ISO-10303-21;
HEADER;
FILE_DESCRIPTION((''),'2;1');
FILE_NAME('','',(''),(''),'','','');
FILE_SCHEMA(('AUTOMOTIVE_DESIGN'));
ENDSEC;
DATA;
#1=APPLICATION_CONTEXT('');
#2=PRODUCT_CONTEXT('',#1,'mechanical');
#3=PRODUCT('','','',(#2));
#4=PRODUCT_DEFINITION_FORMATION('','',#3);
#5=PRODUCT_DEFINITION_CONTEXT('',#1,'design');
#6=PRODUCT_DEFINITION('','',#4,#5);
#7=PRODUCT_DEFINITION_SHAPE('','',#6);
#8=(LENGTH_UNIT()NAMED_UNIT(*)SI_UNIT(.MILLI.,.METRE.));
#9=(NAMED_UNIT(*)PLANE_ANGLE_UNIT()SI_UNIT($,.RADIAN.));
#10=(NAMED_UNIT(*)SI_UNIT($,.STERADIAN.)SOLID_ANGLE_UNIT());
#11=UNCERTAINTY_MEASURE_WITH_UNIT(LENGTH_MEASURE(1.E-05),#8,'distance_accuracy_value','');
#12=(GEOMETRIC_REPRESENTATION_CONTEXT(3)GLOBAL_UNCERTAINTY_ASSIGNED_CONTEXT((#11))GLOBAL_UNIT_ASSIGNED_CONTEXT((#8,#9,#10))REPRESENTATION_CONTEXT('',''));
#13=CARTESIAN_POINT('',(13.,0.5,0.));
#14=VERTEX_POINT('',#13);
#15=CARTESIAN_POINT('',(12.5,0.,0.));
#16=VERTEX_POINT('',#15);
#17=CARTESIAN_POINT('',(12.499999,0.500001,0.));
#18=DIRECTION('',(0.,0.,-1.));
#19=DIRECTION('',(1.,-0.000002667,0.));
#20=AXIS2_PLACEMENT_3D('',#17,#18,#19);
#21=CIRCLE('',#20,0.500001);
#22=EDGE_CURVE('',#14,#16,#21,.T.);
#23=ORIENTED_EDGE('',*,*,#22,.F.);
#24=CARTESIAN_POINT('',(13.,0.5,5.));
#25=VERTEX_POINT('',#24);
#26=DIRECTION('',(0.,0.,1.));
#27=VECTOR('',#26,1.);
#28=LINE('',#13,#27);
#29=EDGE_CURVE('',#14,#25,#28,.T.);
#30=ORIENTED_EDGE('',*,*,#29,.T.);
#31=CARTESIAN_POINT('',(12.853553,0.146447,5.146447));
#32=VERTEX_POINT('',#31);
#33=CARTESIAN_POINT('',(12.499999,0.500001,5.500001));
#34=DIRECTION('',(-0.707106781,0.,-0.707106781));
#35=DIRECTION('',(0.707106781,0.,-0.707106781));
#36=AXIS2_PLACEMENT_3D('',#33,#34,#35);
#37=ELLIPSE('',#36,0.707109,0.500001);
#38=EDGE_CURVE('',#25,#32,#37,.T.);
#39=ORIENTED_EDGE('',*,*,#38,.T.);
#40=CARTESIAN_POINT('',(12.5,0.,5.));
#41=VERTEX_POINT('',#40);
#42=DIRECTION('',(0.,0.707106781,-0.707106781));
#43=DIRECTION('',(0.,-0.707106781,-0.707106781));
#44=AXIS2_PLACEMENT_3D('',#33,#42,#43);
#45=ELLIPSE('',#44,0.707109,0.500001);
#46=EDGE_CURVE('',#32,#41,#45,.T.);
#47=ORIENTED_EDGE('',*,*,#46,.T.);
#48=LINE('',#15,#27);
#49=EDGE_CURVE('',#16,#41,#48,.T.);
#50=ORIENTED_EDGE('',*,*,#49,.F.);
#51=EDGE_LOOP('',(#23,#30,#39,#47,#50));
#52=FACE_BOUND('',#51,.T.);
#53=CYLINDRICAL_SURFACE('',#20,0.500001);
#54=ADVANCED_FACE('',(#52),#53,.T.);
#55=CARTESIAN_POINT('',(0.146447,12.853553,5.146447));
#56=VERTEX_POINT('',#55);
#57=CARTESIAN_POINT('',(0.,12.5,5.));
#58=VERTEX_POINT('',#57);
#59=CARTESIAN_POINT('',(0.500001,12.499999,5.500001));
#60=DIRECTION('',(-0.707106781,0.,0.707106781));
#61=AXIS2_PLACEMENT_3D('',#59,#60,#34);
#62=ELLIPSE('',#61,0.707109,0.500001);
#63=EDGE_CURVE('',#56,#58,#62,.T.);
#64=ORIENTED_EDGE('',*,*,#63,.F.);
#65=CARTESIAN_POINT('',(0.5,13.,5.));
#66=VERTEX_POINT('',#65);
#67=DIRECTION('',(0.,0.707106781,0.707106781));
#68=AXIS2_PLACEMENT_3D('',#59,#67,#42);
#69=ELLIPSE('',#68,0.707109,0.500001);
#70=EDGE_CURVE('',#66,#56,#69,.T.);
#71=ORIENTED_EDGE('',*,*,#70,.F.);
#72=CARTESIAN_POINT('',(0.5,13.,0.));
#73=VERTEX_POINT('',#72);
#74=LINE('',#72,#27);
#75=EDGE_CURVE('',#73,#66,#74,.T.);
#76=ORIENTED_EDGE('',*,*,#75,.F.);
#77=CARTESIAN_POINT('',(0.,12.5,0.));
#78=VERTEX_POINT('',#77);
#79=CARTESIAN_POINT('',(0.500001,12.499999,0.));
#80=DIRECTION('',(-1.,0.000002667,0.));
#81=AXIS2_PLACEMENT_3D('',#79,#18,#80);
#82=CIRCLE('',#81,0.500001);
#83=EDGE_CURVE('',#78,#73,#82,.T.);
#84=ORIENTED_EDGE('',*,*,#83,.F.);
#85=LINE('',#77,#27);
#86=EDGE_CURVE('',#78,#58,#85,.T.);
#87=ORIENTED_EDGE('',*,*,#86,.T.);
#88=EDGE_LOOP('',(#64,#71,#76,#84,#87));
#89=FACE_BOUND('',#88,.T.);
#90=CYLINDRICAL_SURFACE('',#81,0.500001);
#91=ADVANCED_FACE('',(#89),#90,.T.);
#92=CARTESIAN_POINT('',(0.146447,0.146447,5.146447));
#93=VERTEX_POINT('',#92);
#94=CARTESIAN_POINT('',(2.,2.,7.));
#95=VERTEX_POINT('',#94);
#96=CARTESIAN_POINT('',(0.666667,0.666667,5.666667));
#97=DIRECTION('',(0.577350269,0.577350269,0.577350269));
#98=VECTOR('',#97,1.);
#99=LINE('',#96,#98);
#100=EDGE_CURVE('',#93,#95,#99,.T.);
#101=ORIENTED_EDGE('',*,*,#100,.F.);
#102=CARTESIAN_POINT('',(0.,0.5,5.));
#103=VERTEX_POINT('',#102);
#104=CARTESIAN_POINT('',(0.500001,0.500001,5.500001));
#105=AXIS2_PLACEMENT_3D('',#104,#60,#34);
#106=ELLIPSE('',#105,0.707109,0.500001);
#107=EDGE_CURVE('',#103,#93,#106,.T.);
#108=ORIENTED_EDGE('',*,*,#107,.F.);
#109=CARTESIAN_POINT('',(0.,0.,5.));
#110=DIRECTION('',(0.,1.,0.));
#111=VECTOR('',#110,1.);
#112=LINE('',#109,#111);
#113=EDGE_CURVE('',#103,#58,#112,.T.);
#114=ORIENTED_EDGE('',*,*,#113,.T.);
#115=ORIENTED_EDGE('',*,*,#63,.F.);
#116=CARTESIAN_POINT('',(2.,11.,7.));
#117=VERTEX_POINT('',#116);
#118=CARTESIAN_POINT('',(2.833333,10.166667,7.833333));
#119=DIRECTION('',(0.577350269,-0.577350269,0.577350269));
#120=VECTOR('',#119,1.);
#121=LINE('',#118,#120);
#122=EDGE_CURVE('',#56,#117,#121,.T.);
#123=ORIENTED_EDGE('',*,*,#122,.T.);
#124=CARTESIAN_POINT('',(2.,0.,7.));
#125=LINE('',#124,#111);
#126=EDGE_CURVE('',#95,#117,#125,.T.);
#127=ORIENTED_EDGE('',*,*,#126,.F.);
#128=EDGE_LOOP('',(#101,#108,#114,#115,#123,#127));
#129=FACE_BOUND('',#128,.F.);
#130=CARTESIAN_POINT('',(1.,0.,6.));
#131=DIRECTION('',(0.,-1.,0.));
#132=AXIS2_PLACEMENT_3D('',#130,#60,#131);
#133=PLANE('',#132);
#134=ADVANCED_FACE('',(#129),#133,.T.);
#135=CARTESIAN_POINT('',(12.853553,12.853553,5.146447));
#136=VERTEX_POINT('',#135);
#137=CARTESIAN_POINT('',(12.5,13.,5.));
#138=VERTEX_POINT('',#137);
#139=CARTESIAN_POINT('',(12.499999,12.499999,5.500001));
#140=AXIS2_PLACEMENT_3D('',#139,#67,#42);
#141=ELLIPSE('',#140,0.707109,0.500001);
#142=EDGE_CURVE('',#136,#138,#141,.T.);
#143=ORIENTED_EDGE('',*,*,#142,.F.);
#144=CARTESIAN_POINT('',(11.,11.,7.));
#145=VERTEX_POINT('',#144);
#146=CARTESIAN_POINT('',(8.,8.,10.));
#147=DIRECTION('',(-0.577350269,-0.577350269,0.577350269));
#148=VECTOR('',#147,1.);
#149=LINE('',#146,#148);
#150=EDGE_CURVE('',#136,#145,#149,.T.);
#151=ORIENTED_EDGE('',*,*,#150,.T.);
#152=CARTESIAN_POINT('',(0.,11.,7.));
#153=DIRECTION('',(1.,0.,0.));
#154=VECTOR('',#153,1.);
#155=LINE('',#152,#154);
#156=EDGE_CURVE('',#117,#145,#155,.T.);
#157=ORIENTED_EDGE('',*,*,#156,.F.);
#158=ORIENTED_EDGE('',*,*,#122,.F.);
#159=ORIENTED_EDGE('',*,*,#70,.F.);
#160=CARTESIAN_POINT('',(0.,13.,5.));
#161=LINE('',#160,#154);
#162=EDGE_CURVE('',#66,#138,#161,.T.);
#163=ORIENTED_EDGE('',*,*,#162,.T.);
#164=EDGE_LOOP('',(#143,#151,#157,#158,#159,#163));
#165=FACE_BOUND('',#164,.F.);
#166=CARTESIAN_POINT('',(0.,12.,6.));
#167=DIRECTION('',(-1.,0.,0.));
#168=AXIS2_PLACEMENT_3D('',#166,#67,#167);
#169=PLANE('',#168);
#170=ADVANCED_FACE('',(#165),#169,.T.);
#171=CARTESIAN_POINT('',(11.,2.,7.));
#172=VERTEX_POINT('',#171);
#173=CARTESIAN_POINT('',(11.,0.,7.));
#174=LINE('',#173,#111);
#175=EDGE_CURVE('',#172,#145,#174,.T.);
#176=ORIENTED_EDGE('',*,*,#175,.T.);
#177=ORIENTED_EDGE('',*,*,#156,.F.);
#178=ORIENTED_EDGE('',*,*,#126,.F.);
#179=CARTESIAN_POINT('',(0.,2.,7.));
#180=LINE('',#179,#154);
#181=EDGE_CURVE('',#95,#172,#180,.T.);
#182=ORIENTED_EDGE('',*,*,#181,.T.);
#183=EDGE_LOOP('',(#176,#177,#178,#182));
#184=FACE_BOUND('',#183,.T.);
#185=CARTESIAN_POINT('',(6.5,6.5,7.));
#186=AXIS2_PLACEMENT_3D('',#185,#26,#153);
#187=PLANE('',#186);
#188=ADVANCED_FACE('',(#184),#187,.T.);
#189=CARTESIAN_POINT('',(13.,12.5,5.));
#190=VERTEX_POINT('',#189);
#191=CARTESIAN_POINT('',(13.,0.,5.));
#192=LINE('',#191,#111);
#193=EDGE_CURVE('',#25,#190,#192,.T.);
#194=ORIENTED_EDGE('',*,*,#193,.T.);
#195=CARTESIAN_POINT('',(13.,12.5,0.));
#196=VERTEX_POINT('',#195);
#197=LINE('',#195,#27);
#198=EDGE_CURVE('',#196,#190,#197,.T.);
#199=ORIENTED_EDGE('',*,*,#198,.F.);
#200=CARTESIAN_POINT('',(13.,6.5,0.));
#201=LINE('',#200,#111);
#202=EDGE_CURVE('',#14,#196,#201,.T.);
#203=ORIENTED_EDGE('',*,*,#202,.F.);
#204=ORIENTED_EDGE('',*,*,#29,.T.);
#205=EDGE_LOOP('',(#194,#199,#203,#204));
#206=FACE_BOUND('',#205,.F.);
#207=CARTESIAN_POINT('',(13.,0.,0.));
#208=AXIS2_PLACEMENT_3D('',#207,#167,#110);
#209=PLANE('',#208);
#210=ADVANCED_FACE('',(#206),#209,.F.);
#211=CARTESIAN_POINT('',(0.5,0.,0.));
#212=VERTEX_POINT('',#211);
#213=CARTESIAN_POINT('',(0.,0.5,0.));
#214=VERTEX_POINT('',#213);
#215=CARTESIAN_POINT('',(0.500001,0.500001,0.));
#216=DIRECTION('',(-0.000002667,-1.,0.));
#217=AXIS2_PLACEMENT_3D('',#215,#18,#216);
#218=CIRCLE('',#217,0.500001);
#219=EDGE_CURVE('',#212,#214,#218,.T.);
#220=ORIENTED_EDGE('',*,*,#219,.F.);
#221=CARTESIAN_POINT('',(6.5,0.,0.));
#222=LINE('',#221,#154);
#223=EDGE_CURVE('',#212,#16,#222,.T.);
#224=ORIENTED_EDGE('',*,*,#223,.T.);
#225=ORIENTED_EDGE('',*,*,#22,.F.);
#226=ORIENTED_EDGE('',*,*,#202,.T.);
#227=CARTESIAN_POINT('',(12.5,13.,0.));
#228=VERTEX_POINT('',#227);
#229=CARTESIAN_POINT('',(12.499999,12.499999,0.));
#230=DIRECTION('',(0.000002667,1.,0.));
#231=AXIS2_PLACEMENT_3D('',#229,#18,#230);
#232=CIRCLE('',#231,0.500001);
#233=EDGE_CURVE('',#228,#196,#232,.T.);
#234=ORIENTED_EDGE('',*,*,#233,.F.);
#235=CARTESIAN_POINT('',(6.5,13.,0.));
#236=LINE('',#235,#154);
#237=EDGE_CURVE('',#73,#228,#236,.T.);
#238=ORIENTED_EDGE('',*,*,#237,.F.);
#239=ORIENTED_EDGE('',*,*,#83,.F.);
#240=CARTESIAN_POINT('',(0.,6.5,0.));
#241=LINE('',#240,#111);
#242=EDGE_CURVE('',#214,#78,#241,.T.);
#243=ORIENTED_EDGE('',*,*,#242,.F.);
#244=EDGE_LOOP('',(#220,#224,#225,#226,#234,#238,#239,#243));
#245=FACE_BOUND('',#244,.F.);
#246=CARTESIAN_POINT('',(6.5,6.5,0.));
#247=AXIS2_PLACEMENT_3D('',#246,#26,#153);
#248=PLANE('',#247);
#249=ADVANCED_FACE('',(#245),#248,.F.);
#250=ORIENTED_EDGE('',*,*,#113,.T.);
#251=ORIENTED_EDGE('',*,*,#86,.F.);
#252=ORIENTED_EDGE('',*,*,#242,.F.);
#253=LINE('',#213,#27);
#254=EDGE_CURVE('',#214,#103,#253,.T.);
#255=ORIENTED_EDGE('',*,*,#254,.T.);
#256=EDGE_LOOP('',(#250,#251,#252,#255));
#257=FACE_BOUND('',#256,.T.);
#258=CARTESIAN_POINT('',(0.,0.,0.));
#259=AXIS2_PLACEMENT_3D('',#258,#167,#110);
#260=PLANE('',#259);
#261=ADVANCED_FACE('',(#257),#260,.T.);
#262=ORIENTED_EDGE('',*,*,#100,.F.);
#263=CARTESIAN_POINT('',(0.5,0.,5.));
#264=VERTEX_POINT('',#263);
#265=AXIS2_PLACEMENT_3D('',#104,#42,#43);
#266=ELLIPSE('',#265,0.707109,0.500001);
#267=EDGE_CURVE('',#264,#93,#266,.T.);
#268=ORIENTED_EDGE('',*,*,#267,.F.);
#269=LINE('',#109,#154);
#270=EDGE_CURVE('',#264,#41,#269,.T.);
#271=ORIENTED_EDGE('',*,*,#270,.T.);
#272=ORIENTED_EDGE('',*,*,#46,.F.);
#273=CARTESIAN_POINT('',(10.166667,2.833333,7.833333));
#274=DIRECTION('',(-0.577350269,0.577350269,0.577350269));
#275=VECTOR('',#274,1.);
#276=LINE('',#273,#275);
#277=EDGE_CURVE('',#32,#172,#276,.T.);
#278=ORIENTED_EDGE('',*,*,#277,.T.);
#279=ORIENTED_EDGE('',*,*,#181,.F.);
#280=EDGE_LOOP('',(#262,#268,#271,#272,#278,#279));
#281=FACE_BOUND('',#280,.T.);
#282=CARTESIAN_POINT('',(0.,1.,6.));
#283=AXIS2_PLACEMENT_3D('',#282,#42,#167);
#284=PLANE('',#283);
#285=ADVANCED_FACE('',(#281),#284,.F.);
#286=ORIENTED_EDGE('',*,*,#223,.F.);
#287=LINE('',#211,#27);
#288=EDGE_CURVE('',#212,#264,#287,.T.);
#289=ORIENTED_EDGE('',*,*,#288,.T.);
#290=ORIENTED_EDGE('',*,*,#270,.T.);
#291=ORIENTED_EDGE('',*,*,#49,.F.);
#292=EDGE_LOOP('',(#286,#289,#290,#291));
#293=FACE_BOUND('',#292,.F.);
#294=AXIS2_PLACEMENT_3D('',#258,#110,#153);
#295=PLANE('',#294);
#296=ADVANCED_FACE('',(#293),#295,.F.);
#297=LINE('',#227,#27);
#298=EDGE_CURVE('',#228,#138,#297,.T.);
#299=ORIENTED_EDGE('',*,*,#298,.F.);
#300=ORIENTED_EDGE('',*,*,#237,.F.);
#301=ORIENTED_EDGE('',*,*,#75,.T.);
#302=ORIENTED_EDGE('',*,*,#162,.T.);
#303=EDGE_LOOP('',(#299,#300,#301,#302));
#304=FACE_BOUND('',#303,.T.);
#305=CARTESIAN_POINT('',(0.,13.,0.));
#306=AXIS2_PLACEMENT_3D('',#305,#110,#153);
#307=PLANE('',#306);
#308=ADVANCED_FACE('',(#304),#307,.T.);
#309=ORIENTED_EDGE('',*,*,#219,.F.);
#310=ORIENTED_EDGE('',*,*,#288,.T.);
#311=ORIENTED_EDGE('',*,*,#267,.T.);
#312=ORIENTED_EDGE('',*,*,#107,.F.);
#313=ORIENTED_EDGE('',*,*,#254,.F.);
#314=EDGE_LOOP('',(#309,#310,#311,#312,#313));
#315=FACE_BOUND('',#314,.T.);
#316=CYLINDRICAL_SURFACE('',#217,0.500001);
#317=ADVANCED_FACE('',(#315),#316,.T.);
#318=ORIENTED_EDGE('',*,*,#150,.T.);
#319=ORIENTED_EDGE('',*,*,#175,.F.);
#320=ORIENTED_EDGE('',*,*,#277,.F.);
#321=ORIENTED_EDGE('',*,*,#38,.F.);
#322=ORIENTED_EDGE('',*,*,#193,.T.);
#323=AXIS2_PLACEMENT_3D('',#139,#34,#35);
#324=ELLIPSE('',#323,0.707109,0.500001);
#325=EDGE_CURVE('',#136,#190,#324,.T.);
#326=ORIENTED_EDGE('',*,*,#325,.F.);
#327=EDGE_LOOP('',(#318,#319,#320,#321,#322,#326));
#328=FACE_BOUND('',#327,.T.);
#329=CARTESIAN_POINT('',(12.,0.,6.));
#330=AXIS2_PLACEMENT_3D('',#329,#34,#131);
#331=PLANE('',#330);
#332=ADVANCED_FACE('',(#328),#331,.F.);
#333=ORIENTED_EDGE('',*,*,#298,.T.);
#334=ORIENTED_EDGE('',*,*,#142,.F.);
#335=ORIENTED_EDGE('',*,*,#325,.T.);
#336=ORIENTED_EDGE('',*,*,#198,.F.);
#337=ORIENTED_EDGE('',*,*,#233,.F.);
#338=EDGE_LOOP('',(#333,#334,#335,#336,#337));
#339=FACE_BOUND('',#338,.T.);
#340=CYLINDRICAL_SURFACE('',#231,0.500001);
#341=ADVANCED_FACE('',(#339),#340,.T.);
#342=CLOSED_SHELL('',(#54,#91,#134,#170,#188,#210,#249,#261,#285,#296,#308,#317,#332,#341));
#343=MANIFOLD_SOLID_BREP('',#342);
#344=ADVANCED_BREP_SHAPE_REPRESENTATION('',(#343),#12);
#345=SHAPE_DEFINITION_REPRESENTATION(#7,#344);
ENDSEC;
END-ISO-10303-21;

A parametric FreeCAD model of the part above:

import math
import FreeCAD as App
import Part
import Sketcher

V = App.Vector


def edges_at(feature, points):
    """Names of the edges that pass closest to the given points."""
    edges = feature.Shape.Edges
    near = lambda p: min(range(len(edges)), key=lambda i: edges[i].distToShape(Part.Vertex(*p))[0])
    return sorted({f"Edge{near(p) + 1}" for p in points})

doc = App.newDocument("Part")
body = doc.addObject("PartDesign::Body", "Body")

# Sketch on XY plane
sketch1 = body.newObject("Sketcher::SketchObject", "Sketch")
sketch1.AttachmentSupport = (doc.getObject("XY_Plane"), [""])
sketch1.MapMode = "FlatFace"
sketch1.addGeometry([
    Part.LineSegment(V(0, 13, 0), V(0, 0, 0)),
    Part.LineSegment(V(0, 0, 0), V(13, 0, 0)),
    Part.LineSegment(V(13, 0, 0), V(13, 13, 0)),
    Part.LineSegment(V(13, 13, 0), V(0, 13, 0)),
], False)
sketch1.addConstraint([
    Sketcher.Constraint("Coincident", 0, 2, 1, 1),
    Sketcher.Constraint("Coincident", 1, 2, 2, 1),
    Sketcher.Constraint("Coincident", 2, 2, 3, 1),
    Sketcher.Constraint("Coincident", 3, 2, 0, 1),
    Sketcher.Constraint("Vertical", 0),
    Sketcher.Constraint("Horizontal", 1),
    Sketcher.Constraint("Vertical", 2),
    Sketcher.Constraint("Horizontal", 3),
    Sketcher.Constraint("Coincident", 0, 2, -1, 1),
    Sketcher.Constraint("Equal", 3, 0),
    Sketcher.Constraint("DistanceX", 1, 1, 1, 2, 13.0),
])
pad1 = body.newObject("PartDesign::Pad", "Pad")
pad1.Profile = sketch1
pad1.Length = 7
doc.recompute()

chamfer = body.newObject("PartDesign::Chamfer", "Chamfer")
chamfer.Base = (pad1, edges_at(pad1, [
    (0, 6.5, 7),
    (6.5, 13, 7),
    (6.5, 0, 7),
    (13, 6.5, 7),
]))
chamfer.Size = 2

# Sketch on XY plane
sketch2 = body.newObject("Sketcher::SketchObject", "Sketch001")
sketch2.AttachmentSupport = (doc.getObject("XY_Plane"), [""])
sketch2.MapMode = "FlatFace"
sketch2.addGeometry([
    Part.LineSegment(V(0, 0, 0), V(0, 0.5, 0)),  # 0
    Part.ArcOfCircle(Part.Circle(V(0.5, 0.5, 0), V(0, 0, 1), 0.5), math.radians(-180), math.radians(-90)),  # 1
    Part.LineSegment(V(0.5, 0, 0), V(0, 0, 0)),  # 2
    Part.LineSegment(V(13, 0, 0), V(12.5, 0, 0)),  # 3
    Part.ArcOfCircle(Part.Circle(V(12.5, 0.5, 0), V(0, 0, 1), 0.5), math.radians(-90), math.radians(0)),  # 4
    Part.LineSegment(V(13, 0.5, 0), V(13, 0, 0)),  # 5
    Part.LineSegment(V(0, 12.5, 0), V(0, 13, 0)),  # 6
    Part.LineSegment(V(0, 13, 0), V(0.5, 13, 0)),  # 7
    Part.ArcOfCircle(Part.Circle(V(0.5, 12.5, 0), V(0, 0, 1), 0.5), math.radians(90), math.radians(180)),  # 8
    Part.LineSegment(V(13, 13, 0), V(13, 12.5, 0)),  # 9
    Part.ArcOfCircle(Part.Circle(V(12.5, 12.5, 0), V(0, 0, 1), 0.5), math.radians(0), math.radians(90)),  # 10
    Part.LineSegment(V(12.5, 13, 0), V(13, 13, 0)),  # 11
], False)
sketch2.addConstraint([
    Sketcher.Constraint("Coincident", 0, 2, 1, 1),
    Sketcher.Constraint("Coincident", 1, 2, 2, 1),
    Sketcher.Constraint("Coincident", 2, 2, 0, 1),
    Sketcher.Constraint("Coincident", 3, 2, 4, 1),
    Sketcher.Constraint("Coincident", 4, 2, 5, 1),
    Sketcher.Constraint("Coincident", 5, 2, 3, 1),
    Sketcher.Constraint("Coincident", 6, 2, 7, 1),
    Sketcher.Constraint("Coincident", 7, 2, 8, 1),
    Sketcher.Constraint("Coincident", 8, 2, 6, 1),
    Sketcher.Constraint("Coincident", 9, 2, 10, 1),
    Sketcher.Constraint("Coincident", 10, 2, 11, 1),
    Sketcher.Constraint("Coincident", 11, 2, 9, 1),
    Sketcher.Constraint("Vertical", 0),
    Sketcher.Constraint("Horizontal", 2),
    Sketcher.Constraint("Horizontal", 3),
    Sketcher.Constraint("Vertical", 5),
    Sketcher.Constraint("Vertical", 6),
    Sketcher.Constraint("Horizontal", 7),
    Sketcher.Constraint("Vertical", 9),
    Sketcher.Constraint("Horizontal", 11),
    Sketcher.Constraint("Coincident", 2, 2, -1, 1),
    Sketcher.Constraint("Equal", 1, 4),
    Sketcher.Constraint("Equal", 4, 8),
    Sketcher.Constraint("Equal", 8, 10),
    Sketcher.Constraint("PointOnObject", 3, 2, -1),
    Sketcher.Constraint("PointOnObject", 6, 2, -2),
    Sketcher.Constraint("Horizontal", 8, 3, 10, 3),
    Sketcher.Constraint("Horizontal", 4, 3, 0, 2),
    Sketcher.Constraint("Horizontal", 0, 2, 4, 2),
    Sketcher.Constraint("Horizontal", 10, 3, 8, 2),
    Sketcher.Constraint("Horizontal", 8, 2, 9, 2),
    Sketcher.Constraint("Vertical", 4, 3, 10, 3),
    Sketcher.Constraint("Vertical", 8, 3, 1, 2),
    Sketcher.Constraint("Vertical", 10, 3, 3, 2),
    Sketcher.Constraint("Vertical", 1, 2, 7, 2),
    Sketcher.Constraint("Vertical", 3, 2, 10, 2),
    Sketcher.Constraint("Radius", 1, 0.500001),
    Sketcher.Constraint("DistanceX", -1, 1, 4, 2, 13.0),
    Sketcher.Constraint("DistanceY", -1, 1, 6, 2, 13.0),
])
pocket1 = body.newObject("PartDesign::Pocket", "Pocket")
pocket1.Profile = sketch2
pocket1.Length = 7
pocket1.Reversed = True

doc.recompute()
